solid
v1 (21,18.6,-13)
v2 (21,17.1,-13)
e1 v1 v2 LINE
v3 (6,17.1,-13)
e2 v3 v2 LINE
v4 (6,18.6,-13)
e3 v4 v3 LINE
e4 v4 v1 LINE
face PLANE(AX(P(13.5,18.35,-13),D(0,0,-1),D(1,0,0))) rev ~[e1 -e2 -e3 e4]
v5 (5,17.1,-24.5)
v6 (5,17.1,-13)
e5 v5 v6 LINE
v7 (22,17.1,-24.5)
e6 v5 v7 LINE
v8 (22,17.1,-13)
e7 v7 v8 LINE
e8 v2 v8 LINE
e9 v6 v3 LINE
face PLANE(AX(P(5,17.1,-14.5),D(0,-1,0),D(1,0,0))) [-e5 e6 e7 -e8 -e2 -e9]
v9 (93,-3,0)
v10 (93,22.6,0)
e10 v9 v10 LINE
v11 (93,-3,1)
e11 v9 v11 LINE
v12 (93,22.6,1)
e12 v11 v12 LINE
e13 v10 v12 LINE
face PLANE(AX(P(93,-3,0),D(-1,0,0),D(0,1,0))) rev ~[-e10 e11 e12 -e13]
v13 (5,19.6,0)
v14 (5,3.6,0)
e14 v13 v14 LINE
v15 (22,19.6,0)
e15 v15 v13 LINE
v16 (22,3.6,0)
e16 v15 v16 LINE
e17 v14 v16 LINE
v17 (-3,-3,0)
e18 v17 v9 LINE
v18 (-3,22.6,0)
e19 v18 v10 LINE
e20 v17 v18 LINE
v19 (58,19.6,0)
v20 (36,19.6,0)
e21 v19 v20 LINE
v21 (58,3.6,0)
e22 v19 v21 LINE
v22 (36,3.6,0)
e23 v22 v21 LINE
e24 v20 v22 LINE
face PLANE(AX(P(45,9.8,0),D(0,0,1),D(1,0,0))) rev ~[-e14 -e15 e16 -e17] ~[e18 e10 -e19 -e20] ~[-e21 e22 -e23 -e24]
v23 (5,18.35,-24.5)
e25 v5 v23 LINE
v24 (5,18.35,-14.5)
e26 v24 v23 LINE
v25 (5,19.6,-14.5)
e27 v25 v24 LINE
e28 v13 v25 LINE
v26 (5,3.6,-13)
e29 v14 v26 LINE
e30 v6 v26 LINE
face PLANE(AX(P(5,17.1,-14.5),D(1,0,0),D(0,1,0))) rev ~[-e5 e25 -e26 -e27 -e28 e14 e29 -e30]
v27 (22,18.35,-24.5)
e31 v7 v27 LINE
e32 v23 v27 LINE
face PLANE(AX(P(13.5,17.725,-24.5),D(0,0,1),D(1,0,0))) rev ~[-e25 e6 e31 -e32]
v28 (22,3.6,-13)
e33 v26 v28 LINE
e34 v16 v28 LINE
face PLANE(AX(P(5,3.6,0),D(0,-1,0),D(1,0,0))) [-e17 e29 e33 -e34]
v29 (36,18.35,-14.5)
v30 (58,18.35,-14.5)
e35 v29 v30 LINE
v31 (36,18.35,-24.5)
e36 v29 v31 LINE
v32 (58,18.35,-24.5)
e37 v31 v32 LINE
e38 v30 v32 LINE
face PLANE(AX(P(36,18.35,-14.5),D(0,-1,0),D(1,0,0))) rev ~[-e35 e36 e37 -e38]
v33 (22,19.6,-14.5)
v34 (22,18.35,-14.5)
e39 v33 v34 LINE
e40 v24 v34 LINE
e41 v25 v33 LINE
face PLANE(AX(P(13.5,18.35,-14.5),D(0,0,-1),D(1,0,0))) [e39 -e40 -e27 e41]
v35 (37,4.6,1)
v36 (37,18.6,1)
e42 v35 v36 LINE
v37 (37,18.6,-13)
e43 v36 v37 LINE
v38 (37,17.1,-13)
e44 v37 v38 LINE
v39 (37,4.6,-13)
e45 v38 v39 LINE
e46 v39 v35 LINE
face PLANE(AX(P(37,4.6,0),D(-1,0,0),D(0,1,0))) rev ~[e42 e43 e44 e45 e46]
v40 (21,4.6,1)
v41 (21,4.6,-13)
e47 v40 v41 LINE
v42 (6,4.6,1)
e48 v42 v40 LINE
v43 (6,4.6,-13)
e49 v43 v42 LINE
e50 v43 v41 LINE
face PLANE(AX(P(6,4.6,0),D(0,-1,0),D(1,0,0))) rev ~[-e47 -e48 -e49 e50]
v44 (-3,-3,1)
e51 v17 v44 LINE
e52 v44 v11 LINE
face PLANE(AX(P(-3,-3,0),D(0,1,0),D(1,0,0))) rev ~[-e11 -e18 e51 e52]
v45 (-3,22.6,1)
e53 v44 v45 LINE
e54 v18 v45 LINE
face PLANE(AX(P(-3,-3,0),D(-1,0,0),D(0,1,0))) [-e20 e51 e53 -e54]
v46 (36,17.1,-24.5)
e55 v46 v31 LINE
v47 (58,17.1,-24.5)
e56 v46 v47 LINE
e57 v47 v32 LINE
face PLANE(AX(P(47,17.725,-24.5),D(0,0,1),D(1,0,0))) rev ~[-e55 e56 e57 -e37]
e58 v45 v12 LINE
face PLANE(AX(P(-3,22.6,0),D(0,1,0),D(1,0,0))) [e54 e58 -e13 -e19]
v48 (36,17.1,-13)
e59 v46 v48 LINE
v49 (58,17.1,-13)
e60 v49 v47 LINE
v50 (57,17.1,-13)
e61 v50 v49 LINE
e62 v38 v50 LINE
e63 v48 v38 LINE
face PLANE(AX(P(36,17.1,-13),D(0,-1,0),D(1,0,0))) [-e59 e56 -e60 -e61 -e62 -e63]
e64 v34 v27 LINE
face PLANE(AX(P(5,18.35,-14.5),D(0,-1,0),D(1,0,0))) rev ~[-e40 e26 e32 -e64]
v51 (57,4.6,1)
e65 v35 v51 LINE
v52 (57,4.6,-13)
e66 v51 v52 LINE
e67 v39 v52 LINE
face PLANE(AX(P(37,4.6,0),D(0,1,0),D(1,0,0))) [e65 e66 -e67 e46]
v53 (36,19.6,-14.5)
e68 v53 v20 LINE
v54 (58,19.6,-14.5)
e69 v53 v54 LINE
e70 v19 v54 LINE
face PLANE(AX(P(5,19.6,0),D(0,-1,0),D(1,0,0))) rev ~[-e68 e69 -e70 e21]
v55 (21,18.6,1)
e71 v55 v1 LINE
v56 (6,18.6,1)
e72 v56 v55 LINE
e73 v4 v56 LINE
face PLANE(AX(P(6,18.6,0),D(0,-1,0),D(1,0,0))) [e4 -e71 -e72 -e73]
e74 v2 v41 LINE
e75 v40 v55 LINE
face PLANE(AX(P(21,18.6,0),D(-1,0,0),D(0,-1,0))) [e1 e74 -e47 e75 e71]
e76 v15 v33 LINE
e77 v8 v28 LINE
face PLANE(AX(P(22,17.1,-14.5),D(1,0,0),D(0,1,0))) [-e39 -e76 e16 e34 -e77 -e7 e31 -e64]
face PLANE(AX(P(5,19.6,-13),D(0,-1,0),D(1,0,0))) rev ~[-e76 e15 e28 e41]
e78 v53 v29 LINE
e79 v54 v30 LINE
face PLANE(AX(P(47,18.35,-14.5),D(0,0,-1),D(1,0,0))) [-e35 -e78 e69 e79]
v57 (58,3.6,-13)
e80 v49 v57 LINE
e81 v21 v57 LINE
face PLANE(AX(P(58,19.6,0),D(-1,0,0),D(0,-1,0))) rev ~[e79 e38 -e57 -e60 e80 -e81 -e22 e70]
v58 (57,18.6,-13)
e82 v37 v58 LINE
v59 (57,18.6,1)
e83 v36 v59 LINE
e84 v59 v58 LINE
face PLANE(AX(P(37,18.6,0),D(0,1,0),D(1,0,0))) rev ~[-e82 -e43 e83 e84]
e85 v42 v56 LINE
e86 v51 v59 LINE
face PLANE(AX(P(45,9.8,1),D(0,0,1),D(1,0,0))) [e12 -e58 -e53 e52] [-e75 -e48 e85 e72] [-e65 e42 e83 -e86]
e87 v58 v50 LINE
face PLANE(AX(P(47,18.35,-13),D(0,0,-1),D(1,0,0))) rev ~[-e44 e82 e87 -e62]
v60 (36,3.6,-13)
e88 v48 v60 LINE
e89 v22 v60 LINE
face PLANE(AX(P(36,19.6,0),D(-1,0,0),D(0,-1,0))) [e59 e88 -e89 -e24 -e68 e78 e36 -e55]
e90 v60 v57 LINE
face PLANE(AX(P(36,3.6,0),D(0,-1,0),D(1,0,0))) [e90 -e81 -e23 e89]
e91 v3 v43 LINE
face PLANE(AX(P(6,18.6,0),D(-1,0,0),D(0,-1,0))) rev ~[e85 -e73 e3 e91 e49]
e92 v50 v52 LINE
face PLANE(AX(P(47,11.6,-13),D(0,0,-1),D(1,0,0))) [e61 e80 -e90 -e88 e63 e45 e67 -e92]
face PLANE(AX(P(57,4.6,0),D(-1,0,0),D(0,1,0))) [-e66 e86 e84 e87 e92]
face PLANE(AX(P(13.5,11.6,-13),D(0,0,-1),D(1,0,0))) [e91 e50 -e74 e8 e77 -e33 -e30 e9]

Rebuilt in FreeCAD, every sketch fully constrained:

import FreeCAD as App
import Part
import Sketcher


def add_polygon(sketch, points):
    """Adds a closed chain of lines whose ends are joined by coincident constraints."""
    first, n = sketch.GeometryCount, len(points)
    for a, b in zip(points, points[1:] + points[:1]):
        sketch.addGeometry(Part.LineSegment(App.Vector(*a, 0), App.Vector(*b, 0)), False)
    for i in range(n):
        sketch.addConstraint(Sketcher.Constraint("Coincident", first + i, 2, first + (i + 1) % n, 1))

doc = App.newDocument("Part")
body = doc.addObject("PartDesign::Body", "Body")

# Sketch on XY plane
sketch1 = body.newObject("Sketcher::SketchObject", "Sketch")
sketch1.AttachmentSupport = (doc.getObject("XY_Plane"), [""])
sketch1.MapMode = "FlatFace"
add_polygon(sketch1, [(0, 19.6), (0, 0), (90, 0), (90, 19.6)])  # lines 0-3
add_polygon(sketch1, [(21, 4.6), (6, 4.6), (6, 18.6), (21, 18.6)])  # lines 4-7
add_polygon(sketch1, [(57, 4.6), (37, 4.6), (37, 18.6), (57, 18.6)])  # lines 8-11
sketch1.addConstraint([
    Sketcher.Constraint("Vertical", 0),
    Sketcher.Constraint("Horizontal", 1),
    Sketcher.Constraint("Vertical", 2),
    Sketcher.Constraint("Horizontal", 3),
    Sketcher.Constraint("Horizontal", 4),
    Sketcher.Constraint("Vertical", 5),
    Sketcher.Constraint("Horizontal", 6),
    Sketcher.Constraint("Vertical", 7),
    Sketcher.Constraint("Horizontal", 8),
    Sketcher.Constraint("Vertical", 9),
    Sketcher.Constraint("Horizontal", 10),
    Sketcher.Constraint("Vertical", 11),
    Sketcher.Constraint("Coincident", 0, 2, -1, 1),
    Sketcher.Constraint("Horizontal", 7, 2, 8, 2),
    Sketcher.Constraint("Horizontal", 6, 2, 9, 2),
    Sketcher.Constraint("DistanceX", 1, 1, 1, 2, 90.0),
    Sketcher.Constraint("DistanceX", 4, 2, 4, 1, 15.0),
    Sketcher.Constraint("DistanceX", 8, 2, 8, 1, 20.0),
    Sketcher.Constraint("DistanceY", 5, 1, 5, 2, 14.0),
    Sketcher.Constraint("DistanceY", 0, 2, 0, 1, 19.6),
    Sketcher.Constraint("DistanceX", -1, 1, 4, 2, 6.0),
    Sketcher.Constraint("DistanceX", -1, 1, 8, 2, 37.0),
    Sketcher.Constraint("DistanceY", 4, 2, 3, 2, 15.0),
])
pad1 = body.newObject("PartDesign::Pad", "Pad")
pad1.Profile = sketch1
pad1.Length = 1

# Sketch on XY plane
sketch2 = body.newObject("Sketcher::SketchObject", "Sketch001")
sketch2.AttachmentSupport = (doc.getObject("XY_Plane"), [""])
sketch2.MapMode = "FlatFace"
add_polygon(sketch2, [(5, 3.6), (5, 19.6), (22, 19.6), (22, 3.6)])  # lines 0-3
add_polygon(sketch2, [(21, 18.6), (6, 18.6), (6, 4.6), (21, 4.6)])  # lines 4-7
add_polygon(sketch2, [(36, 3.6), (36, 19.6), (58, 19.6), (58, 3.6)])  # lines 8-11
add_polygon(sketch2, [(57, 18.6), (37, 18.6), (37, 4.6), (57, 4.6)])  # lines 12-15
sketch2.addConstraint([
    Sketcher.Constraint("Vertical", 0),
    Sketcher.Constraint("Horizontal", 1),
    Sketcher.Constraint("Vertical", 2),
    Sketcher.Constraint("Horizontal", 3),
    Sketcher.Constraint("Horizontal", 4),
    Sketcher.Constraint("Vertical", 5),
    Sketcher.Constraint("Horizontal", 6),
    Sketcher.Constraint("Vertical", 7),
    Sketcher.Constraint("Vertical", 8),
    Sketcher.Constraint("Horizontal", 9),
    Sketcher.Constraint("Vertical", 10),
    Sketcher.Constraint("Horizontal", 11),
    Sketcher.Constraint("Horizontal", 12),
    Sketcher.Constraint("Vertical", 13),
    Sketcher.Constraint("Horizontal", 14),
    Sketcher.Constraint("Vertical", 15),
    Sketcher.Constraint("Horizontal", 1, 2, 8, 2),
    Sketcher.Constraint("Horizontal", 3, 2, 10, 2),
    Sketcher.Constraint("Horizontal", 7, 2, 12, 2),
    Sketcher.Constraint("Horizontal", 6, 2, 13, 2),
    Sketcher.Constraint("DistanceX", 1, 1, 1, 2, 17.0),
    Sketcher.Constraint("DistanceX", 4, 2, 4, 1, 15.0),
    Sketcher.Constraint("DistanceX", 9, 1, 9, 2, 22.0),
    Sketcher.Constraint("DistanceX", 12, 2, 12, 1, 20.0),
    Sketcher.Constraint("DistanceY", 0, 1, 0, 2, 16.0),
    Sketcher.Constraint("DistanceY", 5, 2, 5, 1, 14.0),
    Sketcher.Constraint("DistanceX", -1, 1, 0, 2, 5.0),
    Sketcher.Constraint("DistanceX", -1, 1, 4, 2, 6.0),
    Sketcher.Constraint("DistanceX", -1, 1, 8, 2, 36.0),
    Sketcher.Constraint("DistanceX", -1, 1, 12, 2, 37.0),
    Sketcher.Constraint("DistanceY", 4, 2, 0, 2, 1.0),
    Sketcher.Constraint("DistanceY", -1, 1, 0, 2, 19.6),
])
pad2 = body.newObject("PartDesign::Pad", "Pad001")
pad2.Profile = sketch2
pad2.Length = 13
pad2.Reversed = True

# Sketch on XY plane
sketch3 = body.newObject("Sketcher::SketchObject", "Sketch002")
sketch3.AttachmentSupport = (doc.getObject("XY_Plane"), [""])
sketch3.MapMode = "FlatFace"
add_polygon(sketch3, [(-3, 22.6), (-3, -3), (93, -3), (93, 22.6)])  # lines 0-3
add_polygon(sketch3, [(21, 4.6), (6, 4.6), (6, 18.6), (21, 18.6)])  # lines 4-7
add_polygon(sketch3, [(57, 4.6), (37, 4.6), (37, 18.6), (57, 18.6)])  # lines 8-11
sketch3.addConstraint([
    Sketcher.Constraint("Vertical", 0),
    Sketcher.Constraint("Horizontal", 1),
    Sketcher.Constraint("Vertical", 2),
    Sketcher.Constraint("Horizontal", 3),
    Sketcher.Constraint("Horizontal", 4),
    Sketcher.Constraint("Vertical", 5),
    Sketcher.Constraint("Horizontal", 6),
    Sketcher.Constraint("Vertical", 7),
    Sketcher.Constraint("Horizontal", 8),
    Sketcher.Constraint("Vertical", 9),
    Sketcher.Constraint("Horizontal", 10),
    Sketcher.Constraint("Vertical", 11),
    Sketcher.Constraint("Horizontal", 7, 2, 8, 2),
    Sketcher.Constraint("Horizontal", 6, 2, 9, 2),
    Sketcher.Constraint("DistanceX", 1, 1, 1, 2, 96.0),
    Sketcher.Constraint("DistanceX", 4, 2, 4, 1, 15.0),
    Sketcher.Constraint("DistanceX", 8, 2, 8, 1, 20.0),
    Sketcher.Constraint("DistanceY", 5, 1, 5, 2, 14.0),
    Sketcher.Constraint("DistanceY", 0, 2, 0, 1, 25.6),
    Sketcher.Constraint("DistanceX", 0, 2, -1, 1, 3.0),
    Sketcher.Constraint("DistanceY", 0, 2, -1, 1, 3.0),
    Sketcher.Constraint("DistanceX", -1, 1, 4, 2, 6.0),
    Sketcher.Constraint("DistanceX", -1, 1, 8, 2, 37.0),
    Sketcher.Constraint("DistanceY", 4, 2, 3, 2, 18.0),
])
pad3 = body.newObject("PartDesign::Pad", "Pad002")
pad3.Profile = sketch3
pad3.Length = 1

# Sketch on XY plane
sketch4 = body.newObject("Sketcher::SketchObject", "Sketch003")
sketch4.AttachmentSupport = (doc.getObject("XY_Plane"), [""])
sketch4.MapMode = "FlatFace"
sketch4.AttachmentOffset = App.Placement(App.Vector(0, 0, -13), App.Rotation())
add_polygon(sketch4, [(5, 17.1), (5, 19.6), (22, 19.6), (22, 17.1)])  # lines 0-3
add_polygon(sketch4, [(36, 17.1), (36, 19.6), (58, 19.6), (58, 17.1)])  # lines 4-7
sketch4.addConstraint([
    Sketcher.Constraint("Vertical", 0),
    Sketcher.Constraint("Horizontal", 1),
    Sketcher.Constraint("Vertical", 2),
    Sketcher.Constraint("Horizontal", 3),
    Sketcher.Constraint("Vertical", 4),
    Sketcher.Constraint("Horizontal", 5),
    Sketcher.Constraint("Vertical", 6),
    Sketcher.Constraint("Horizontal", 7),
    Sketcher.Constraint("Horizontal", 1, 2, 4, 2),
    Sketcher.Constraint("Horizontal", 3, 2, 6, 2),
    Sketcher.Constraint("DistanceX", 1, 1, 1, 2, 17.0),
    Sketcher.Constraint("DistanceX", 5, 1, 5, 2, 22.0),
    Sketcher.Constraint("DistanceY", 0, 1, 0, 2, 2.5),
    Sketcher.Constraint("DistanceX", -1, 1, 0, 2, 5.0),
    Sketcher.Constraint("DistanceX", -1, 1, 4, 2, 36.0),
    Sketcher.Constraint("DistanceY", -1, 1, 0, 2, 19.6),
])
pad4 = body.newObject("PartDesign::Pad", "Pad003")
pad4.Profile = sketch4
pad4.Length = 1.5
pad4.Reversed = True

# Sketch on XY plane
sketch5 = body.newObject("Sketcher::SketchObject", "Sketch004")
sketch5.AttachmentSupport = (doc.getObject("XY_Plane"), [""])
sketch5.MapMode = "FlatFace"
sketch5.AttachmentOffset = App.Placement(App.Vector(0, 0, -14.5), App.Rotation())
add_polygon(sketch5, [(5, 18.35), (5, 17.1), (22, 17.1), (22, 18.35)])  # lines 0-3
add_polygon(sketch5, [(36, 18.35), (36, 17.1), (58, 17.1), (58, 18.35)])  # lines 4-7
sketch5.addConstraint([
    Sketcher.Constraint("Vertical", 0),
    Sketcher.Constraint("Horizontal", 1),
    Sketcher.Constraint("Vertical", 2),
    Sketcher.Constraint("Horizontal", 3),
    Sketcher.Constraint("Vertical", 4),
    Sketcher.Constraint("Horizontal", 5),
    Sketcher.Constraint("Vertical", 6),
    Sketcher.Constraint("Horizontal", 7),
    Sketcher.Constraint("Horizontal", 1, 2, 4, 2),
    Sketcher.Constraint("Horizontal", 3, 2, 6, 2),
    Sketcher.Constraint("DistanceX", 1, 1, 1, 2, 17.0),
    Sketcher.Constraint("DistanceX", 5, 1, 5, 2, 22.0),
    Sketcher.Constraint("DistanceX", -1, 1, 0, 2, 5.0),
    Sketcher.Constraint("DistanceX", -1, 1, 4, 2, 36.0),
    Sketcher.Constraint("DistanceY", 0, 2, 0, 1, 1.25),
    Sketcher.Constraint("DistanceY", -1, 1, 0, 2, 17.1),
])
pad5 = body.newObject("PartDesign::Pad", "Pad004")
pad5.Profile = sketch5
pad5.Length = 10
pad5.Reversed = True

doc.recompute()
